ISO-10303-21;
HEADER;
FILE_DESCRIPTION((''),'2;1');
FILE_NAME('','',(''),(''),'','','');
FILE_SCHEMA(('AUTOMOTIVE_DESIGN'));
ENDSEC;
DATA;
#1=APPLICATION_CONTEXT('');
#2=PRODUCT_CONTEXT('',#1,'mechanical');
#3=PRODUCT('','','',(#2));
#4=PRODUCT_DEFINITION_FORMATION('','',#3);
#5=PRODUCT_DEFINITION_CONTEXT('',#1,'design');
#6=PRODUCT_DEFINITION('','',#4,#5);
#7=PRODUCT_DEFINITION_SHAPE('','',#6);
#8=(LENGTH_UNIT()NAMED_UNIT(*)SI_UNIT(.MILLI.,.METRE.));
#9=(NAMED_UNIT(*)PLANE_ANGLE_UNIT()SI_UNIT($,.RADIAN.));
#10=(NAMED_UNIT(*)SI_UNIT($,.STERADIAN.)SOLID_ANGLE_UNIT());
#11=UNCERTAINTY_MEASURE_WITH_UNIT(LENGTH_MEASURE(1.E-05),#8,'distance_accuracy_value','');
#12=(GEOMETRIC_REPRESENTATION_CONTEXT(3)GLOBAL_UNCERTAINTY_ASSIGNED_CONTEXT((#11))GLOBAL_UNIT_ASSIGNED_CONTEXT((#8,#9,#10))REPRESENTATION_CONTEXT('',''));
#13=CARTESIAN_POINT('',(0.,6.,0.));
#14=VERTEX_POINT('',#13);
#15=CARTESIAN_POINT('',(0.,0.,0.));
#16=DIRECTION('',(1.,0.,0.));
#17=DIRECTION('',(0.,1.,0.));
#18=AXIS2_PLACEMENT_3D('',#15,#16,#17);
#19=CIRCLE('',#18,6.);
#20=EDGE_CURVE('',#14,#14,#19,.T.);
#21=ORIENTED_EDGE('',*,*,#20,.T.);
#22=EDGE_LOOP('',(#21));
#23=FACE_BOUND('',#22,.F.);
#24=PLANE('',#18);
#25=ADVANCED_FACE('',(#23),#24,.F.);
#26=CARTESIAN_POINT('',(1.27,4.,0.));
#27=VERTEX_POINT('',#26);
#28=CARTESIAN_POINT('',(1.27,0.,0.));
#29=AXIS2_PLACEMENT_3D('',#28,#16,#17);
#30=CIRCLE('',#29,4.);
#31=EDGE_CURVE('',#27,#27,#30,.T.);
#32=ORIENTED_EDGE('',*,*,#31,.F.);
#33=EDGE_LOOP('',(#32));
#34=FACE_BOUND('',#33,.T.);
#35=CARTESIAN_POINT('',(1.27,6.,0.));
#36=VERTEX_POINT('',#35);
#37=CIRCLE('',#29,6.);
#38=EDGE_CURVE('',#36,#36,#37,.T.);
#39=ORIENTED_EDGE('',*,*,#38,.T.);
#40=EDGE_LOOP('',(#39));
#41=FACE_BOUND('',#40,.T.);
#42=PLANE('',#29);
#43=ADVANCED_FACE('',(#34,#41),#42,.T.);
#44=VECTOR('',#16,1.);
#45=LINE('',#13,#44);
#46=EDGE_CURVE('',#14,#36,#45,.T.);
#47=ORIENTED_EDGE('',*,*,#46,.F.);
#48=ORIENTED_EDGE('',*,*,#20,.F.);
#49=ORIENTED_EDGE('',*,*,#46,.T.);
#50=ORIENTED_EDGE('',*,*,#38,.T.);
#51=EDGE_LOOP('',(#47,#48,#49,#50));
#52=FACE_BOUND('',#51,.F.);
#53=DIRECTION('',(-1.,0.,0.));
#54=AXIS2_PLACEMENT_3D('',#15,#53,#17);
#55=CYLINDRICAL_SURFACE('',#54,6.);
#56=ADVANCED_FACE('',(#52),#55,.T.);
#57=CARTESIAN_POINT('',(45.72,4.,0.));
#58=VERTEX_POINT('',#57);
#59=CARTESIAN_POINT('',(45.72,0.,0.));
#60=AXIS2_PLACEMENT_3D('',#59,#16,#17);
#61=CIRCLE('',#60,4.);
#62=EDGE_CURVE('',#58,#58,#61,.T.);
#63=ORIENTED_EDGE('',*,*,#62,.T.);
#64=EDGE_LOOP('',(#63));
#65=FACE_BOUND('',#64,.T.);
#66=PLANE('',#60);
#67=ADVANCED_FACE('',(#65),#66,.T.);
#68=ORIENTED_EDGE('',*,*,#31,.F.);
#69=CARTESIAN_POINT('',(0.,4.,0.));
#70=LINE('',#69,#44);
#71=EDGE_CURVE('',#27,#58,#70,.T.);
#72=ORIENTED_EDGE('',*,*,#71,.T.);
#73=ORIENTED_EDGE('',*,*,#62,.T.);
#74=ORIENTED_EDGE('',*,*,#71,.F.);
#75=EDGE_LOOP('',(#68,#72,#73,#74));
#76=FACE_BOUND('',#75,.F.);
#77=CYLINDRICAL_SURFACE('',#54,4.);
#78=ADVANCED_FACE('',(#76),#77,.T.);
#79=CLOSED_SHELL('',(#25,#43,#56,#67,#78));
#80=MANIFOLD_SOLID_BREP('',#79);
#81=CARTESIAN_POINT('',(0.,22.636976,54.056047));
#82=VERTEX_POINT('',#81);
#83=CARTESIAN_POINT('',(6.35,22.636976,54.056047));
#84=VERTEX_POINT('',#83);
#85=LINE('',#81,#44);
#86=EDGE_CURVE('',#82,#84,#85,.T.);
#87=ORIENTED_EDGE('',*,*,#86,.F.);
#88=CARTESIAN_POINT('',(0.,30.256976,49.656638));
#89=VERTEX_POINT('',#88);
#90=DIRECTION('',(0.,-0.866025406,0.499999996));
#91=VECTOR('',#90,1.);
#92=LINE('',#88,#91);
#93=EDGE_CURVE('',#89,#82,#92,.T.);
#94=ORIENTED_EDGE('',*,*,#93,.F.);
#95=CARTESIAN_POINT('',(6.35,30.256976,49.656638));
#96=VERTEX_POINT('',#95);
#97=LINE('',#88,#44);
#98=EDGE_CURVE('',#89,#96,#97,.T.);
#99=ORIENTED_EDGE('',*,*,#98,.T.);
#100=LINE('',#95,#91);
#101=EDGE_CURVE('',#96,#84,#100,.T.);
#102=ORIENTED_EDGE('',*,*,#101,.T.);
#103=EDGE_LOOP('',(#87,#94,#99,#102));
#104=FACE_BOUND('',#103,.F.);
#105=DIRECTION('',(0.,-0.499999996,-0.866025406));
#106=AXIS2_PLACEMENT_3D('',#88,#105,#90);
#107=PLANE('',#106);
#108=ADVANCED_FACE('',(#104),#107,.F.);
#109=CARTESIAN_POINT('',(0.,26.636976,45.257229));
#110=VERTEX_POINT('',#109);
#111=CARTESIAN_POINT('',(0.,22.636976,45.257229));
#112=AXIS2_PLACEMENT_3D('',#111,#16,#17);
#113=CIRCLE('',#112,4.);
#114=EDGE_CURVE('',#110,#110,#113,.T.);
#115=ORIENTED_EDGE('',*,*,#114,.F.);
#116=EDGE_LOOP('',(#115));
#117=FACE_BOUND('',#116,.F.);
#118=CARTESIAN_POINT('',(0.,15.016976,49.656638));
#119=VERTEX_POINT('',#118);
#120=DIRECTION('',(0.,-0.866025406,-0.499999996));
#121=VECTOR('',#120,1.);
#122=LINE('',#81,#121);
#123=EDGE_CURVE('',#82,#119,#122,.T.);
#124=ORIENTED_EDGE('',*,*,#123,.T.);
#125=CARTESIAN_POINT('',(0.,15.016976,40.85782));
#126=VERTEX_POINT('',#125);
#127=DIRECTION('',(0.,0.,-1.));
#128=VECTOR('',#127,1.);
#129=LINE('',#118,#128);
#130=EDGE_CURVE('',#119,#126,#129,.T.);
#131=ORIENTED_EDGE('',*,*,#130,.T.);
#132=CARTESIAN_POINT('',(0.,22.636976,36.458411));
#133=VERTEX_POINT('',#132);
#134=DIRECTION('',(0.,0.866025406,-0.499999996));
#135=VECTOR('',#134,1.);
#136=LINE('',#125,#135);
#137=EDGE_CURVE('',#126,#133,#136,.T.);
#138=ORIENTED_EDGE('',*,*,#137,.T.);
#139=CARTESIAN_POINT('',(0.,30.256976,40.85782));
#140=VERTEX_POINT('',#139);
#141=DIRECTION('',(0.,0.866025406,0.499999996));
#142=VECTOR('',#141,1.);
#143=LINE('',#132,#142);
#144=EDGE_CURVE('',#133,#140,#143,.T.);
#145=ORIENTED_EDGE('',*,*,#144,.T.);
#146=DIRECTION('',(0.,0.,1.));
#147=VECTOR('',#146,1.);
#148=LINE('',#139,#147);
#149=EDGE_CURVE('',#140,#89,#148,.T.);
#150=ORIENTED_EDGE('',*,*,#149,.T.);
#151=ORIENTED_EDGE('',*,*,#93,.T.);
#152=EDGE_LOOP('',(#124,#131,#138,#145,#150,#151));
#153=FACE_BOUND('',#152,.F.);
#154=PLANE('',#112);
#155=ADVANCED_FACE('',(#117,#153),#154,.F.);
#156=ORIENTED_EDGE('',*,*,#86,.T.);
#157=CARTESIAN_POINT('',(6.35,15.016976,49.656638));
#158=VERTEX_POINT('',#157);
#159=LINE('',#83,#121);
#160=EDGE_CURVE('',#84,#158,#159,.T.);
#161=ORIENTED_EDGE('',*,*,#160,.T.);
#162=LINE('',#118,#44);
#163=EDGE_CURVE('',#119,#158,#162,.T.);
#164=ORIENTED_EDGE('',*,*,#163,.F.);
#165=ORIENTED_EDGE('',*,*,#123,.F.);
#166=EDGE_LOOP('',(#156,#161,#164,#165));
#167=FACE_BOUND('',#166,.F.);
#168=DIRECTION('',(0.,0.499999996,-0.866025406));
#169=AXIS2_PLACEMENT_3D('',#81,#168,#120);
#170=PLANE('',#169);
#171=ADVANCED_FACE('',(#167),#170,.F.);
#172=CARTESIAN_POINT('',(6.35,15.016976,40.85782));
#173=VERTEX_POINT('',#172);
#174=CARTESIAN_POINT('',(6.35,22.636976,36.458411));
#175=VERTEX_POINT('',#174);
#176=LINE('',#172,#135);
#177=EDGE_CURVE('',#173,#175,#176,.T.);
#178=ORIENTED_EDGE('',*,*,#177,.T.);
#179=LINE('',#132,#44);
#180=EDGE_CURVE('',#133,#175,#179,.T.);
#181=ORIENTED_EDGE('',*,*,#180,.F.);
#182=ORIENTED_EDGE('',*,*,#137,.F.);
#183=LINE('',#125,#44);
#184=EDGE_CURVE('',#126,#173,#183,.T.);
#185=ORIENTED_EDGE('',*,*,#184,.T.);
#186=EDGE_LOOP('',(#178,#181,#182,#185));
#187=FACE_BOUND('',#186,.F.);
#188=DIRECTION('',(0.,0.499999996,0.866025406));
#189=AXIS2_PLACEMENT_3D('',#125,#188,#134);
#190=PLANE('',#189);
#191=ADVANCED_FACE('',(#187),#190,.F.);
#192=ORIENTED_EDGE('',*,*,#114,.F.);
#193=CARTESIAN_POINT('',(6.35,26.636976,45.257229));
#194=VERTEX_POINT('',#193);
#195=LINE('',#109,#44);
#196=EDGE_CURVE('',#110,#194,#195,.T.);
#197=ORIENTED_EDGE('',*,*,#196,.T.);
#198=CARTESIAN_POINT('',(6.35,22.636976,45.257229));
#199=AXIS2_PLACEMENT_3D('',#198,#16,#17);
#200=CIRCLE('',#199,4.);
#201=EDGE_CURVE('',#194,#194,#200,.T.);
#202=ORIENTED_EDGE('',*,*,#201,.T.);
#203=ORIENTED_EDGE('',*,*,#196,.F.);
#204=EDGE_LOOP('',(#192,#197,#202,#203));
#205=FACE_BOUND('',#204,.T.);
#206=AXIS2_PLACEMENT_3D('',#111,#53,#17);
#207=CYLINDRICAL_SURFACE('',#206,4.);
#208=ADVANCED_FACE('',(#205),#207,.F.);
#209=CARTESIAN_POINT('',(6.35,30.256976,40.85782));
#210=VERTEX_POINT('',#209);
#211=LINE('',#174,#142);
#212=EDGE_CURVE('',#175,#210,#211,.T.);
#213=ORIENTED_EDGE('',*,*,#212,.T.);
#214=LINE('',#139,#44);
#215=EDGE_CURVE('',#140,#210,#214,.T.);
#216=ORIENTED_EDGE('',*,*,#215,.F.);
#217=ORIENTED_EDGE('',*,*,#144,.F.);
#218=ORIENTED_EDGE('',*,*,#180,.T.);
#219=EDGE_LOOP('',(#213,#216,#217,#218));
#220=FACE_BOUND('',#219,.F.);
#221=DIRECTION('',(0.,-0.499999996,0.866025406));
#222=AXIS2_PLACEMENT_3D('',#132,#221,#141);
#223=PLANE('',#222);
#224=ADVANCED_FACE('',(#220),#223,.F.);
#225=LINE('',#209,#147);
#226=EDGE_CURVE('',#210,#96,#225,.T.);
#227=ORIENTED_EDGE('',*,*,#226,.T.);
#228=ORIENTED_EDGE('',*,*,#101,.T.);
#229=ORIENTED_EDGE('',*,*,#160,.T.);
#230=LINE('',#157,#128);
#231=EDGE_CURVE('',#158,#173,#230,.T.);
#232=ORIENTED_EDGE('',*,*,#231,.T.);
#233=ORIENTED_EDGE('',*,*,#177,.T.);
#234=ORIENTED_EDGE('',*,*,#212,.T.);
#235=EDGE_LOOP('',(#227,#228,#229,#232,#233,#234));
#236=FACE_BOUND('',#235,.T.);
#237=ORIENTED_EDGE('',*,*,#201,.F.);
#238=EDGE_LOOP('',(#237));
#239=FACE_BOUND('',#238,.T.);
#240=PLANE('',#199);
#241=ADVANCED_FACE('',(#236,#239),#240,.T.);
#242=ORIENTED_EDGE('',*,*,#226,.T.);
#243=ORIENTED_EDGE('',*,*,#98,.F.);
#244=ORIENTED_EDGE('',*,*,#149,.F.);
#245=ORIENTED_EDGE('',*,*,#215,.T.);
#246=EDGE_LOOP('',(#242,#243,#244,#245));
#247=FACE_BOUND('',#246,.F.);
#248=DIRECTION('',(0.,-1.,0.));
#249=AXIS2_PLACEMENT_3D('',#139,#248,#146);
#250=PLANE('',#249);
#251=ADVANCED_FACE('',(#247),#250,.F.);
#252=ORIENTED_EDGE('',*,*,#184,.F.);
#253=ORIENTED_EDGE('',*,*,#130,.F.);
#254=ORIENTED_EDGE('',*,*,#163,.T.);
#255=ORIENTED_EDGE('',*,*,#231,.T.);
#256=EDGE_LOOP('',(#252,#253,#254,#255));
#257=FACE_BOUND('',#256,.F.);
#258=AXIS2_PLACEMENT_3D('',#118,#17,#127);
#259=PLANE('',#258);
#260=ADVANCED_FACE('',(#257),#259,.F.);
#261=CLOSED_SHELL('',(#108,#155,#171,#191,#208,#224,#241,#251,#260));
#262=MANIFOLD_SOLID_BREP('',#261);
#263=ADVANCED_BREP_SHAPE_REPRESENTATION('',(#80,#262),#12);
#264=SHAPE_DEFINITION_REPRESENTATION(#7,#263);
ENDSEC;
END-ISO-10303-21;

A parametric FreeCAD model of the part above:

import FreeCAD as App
import Part
import Sketcher

V = App.Vector
Q = App.Units.Quantity

doc = App.newDocument("Part")
params = doc.addObject("Spreadsheet::Sheet", "Params")
for row, (alias, value) in enumerate([
    ("pad1_length", "1.8 in"),
    ("pad2_length", "0.05 in"),
    ("pad3_length", "0.25 in"),
], start=1):
    params.set(f"A{row}", alias)
    params.set(f"B{row}", "=" + value)
    params.setAlias(f"B{row}", alias)

body = doc.addObject("PartDesign::Body", "Body")

# Sketch on YZ plane
sketch1 = body.newObject("Sketcher::SketchObject", "Sketch")
sketch1.AttachmentSupport = (doc.getObject("YZ_Plane"), [""])
sketch1.MapMode = "FlatFace"
sketch1.addGeometry(Part.Circle(V(0, 0, 0), V(0, 0, 1), 4), False)
sketch1.addConstraint([
    Sketcher.Constraint("Coincident", 0, 3, -1, 1),
    Sketcher.Constraint("Diameter", 0, Q("8 mm")),
])
pad1 = body.newObject("PartDesign::Pad", "Pad")
pad1.Profile = sketch1
pad1.setExpression("Length", "Params.pad1_length")

# Sketch on YZ plane
sketch2 = body.newObject("Sketcher::SketchObject", "Sketch001")
sketch2.AttachmentSupport = (doc.getObject("YZ_Plane"), [""])
sketch2.MapMode = "FlatFace"
sketch2.addGeometry([
    Part.Circle(V(0, 0, 0), V(0, 0, 1), 6),
    Part.Circle(V(0, 0, 0), V(0, 0, 1), 4),
], False)
sketch2.addConstraint([
    Sketcher.Constraint("Coincident", 0, 3, -1, 1),
    Sketcher.Constraint("Coincident", 1, 3, -1, 1),
    Sketcher.Constraint("Diameter", 0, Q("12 mm")),
    Sketcher.Constraint("Diameter", 1, Q("8 mm")),
])
pad2 = body.newObject("PartDesign::Pad", "Pad001")
pad2.Profile = sketch2
pad2.setExpression("Length", "Params.pad2_length")
body2 = doc.addObject("PartDesign::Body", "Body001")

# Sketch on YZ plane
sketch3 = body2.newObject("Sketcher::SketchObject", "Sketch002")
sketch3.AttachmentSupport = (doc.getObject("YZ_Plane001"), [""])
sketch3.MapMode = "FlatFace"
sketch3.addGeometry([
    Part.LineSegment(V(30.3, 40.9, 0), V(30.3, 49.7, 0)),  # 0
    Part.LineSegment(V(30.3, 49.7, 0), V(22.6, 54.1, 0)),  # 1
    Part.LineSegment(V(22.6, 54.1, 0), V(15, 49.7, 0)),  # 2
    Part.LineSegment(V(15, 49.7, 0), V(15, 40.9, 0)),  # 3
    Part.LineSegment(V(15, 40.9, 0), V(22.6, 36.5, 0)),  # 4
    Part.LineSegment(V(22.6, 36.5, 0), V(30.3, 40.9, 0)),  # 5
    Part.Circle(V(22.6, 45.3, 0), V(0, 0, 1), 4),  # 6
], False)
sketch3.addConstraint([
    Sketcher.Constraint("Coincident", 0, 2, 1, 1),
    Sketcher.Constraint("Coincident", 1, 2, 2, 1),
    Sketcher.Constraint("Coincident", 2, 2, 3, 1),
    Sketcher.Constraint("Coincident", 3, 2, 4, 1),
    Sketcher.Constraint("Coincident", 4, 2, 5, 1),
    Sketcher.Constraint("Coincident", 5, 2, 0, 1),
    Sketcher.Constraint("Vertical", 0),
    Sketcher.Constraint("Vertical", 3),
    Sketcher.Constraint("Parallel", 1, 4),
    Sketcher.Constraint("Parallel", 2, 5),
    Sketcher.Constraint("Horizontal", 0, 2, 2, 2),
    Sketcher.Constraint("Horizontal", 3, 2, 5, 2),
    Sketcher.Constraint("Vertical", 6, 3, 1, 2),
    Sketcher.Constraint("Vertical", 1, 2, 4, 2),
    Sketcher.Constraint("Angle", 1, Q("150 deg")),
    Sketcher.Constraint("DistanceX", 6, 3, 0, 2, Q("0.3 in")),
    Sketcher.Constraint("Diameter", 6, Q("8 mm")),
    Sketcher.Constraint("DistanceY", 0, 1, 0, 2, Q("8.798818 mm")),
    Sketcher.Constraint("DistanceY", -1, 1, 6, 3, Q("45.257229 mm")),
    Sketcher.Constraint("DistanceY", -1, 1, 3, 2, Q("40.85782 mm")),
    Sketcher.Constraint("DistanceX", -1, 1, 6, 3, Q("22.636976 mm")),
])
pad3 = body2.newObject("PartDesign::Pad", "Pad002")
pad3.Profile = sketch3
pad3.setExpression("Length", "Params.pad3_length")

doc.recompute()
